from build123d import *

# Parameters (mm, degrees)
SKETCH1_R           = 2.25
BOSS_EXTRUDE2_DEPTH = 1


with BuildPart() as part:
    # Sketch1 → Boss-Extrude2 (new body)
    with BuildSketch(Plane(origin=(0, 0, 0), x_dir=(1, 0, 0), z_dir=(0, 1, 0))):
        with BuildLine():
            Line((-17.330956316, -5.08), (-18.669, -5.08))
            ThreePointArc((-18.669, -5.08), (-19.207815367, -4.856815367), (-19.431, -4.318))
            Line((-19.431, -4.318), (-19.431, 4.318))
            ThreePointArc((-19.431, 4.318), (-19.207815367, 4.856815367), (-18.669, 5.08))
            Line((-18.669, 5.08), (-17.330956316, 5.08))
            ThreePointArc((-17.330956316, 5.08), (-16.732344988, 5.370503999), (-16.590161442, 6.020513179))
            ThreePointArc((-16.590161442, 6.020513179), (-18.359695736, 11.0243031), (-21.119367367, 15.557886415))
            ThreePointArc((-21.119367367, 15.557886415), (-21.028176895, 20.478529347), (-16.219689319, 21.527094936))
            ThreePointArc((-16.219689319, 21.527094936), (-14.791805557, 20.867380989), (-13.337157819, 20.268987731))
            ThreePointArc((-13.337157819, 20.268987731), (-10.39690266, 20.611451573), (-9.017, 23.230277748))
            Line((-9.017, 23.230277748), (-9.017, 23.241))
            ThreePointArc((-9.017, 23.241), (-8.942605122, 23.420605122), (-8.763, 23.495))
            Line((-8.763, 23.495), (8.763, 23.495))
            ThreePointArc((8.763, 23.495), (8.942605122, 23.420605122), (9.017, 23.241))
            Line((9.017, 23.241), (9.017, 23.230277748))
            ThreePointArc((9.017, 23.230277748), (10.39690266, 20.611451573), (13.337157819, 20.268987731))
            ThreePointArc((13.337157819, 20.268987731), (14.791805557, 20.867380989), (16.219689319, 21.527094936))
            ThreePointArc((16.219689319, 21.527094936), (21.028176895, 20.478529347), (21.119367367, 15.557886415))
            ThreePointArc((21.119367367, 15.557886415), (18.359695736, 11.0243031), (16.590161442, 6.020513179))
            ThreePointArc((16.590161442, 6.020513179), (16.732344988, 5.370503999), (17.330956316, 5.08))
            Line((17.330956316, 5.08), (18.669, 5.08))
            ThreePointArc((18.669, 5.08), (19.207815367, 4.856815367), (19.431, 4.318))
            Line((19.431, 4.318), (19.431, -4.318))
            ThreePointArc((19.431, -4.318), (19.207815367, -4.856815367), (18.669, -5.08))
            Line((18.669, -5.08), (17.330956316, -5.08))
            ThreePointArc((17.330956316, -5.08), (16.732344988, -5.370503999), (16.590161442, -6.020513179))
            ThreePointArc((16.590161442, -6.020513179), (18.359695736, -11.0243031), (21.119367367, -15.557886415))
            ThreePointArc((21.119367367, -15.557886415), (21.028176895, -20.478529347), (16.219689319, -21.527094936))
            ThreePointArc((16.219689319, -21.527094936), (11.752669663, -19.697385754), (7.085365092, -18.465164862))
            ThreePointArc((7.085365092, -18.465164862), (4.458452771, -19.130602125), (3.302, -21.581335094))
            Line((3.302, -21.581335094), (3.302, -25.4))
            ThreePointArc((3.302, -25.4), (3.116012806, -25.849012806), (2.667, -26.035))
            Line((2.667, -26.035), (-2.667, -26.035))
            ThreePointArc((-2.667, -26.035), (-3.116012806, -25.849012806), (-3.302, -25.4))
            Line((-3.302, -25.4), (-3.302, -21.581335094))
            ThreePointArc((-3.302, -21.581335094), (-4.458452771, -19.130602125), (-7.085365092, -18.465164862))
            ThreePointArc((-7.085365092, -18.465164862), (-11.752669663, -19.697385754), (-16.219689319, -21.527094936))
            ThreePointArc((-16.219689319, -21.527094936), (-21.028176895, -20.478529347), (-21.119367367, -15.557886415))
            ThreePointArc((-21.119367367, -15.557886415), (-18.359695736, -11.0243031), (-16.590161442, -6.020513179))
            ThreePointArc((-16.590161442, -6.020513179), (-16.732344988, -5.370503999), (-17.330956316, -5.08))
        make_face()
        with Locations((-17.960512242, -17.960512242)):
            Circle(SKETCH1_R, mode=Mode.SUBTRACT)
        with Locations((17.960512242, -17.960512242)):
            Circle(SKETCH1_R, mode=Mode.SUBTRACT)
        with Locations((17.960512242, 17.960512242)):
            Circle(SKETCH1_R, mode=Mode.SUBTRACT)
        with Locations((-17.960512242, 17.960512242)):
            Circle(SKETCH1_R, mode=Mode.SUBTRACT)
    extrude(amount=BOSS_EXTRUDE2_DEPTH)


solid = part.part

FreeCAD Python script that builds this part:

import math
import FreeCAD as App
import Part
import Sketcher
Q = App.Units.Quantity

doc = App.newDocument("Part")
body = doc.addObject("PartDesign::Body", "Body")

sketch1 = body.newObject("Sketcher::SketchObject", "Sketch")
sketch1.AttachmentSupport = (doc.getObject("XZ_Plane"), [""])
sketch1.MapMode = "FlatFace"
sketch1.addGeometry([
    Part.LineSegment(App.Vector(-18.669, 5.08, 0), App.Vector(-17.331, 5.08, 0)),
    Part.ArcOfCircle(Part.Circle(App.Vector(-17.331, 5.842, 0), App.Vector(0, 0, 1), 0.762), math.radians(-90), math.radians(14)),
    Part.ArcOfCircle(Part.Circle(App.Vector(-41.574, 0, 0), App.Vector(0, 0, 1), 25.699), math.radians(14), math.radians(37)),
    Part.ArcOfCircle(Part.Circle(App.Vector(-17.961, 17.961, 0), App.Vector(0, 0, 1), 3.969), math.radians(64), math.radians(217)),
    Part.ArcOfCircle(Part.Circle(App.Vector(0, 54.758, 0), App.Vector(0, 0, 1), 36.978), math.radians(-116.02), math.radians(-101.05)),
    Part.ArcOfCircle(Part.Circle(App.Vector(-6.477, 21.581, 0), App.Vector(0, 0, 1), 3.175), math.radians(-101), math.radians(0)),
    Part.LineSegment(App.Vector(-3.302, 21.581, 0), App.Vector(-3.302, 25.4, 0)),
    Part.ArcOfCircle(Part.Circle(App.Vector(-2.667, 25.4, 0), App.Vector(0, 0, 1), 0.635), math.radians(90), math.radians(180)),
    Part.LineSegment(App.Vector(-2.667, 26.035, 0), App.Vector(2.667, 26.035, 0)),
    Part.ArcOfCircle(Part.Circle(App.Vector(2.667, 25.4, 0), App.Vector(0, 0, 1), 0.635), math.radians(0), math.radians(90)),
    Part.LineSegment(App.Vector(3.302, 25.4, 0), App.Vector(3.302, 21.581, 0)),
    Part.ArcOfCircle(Part.Circle(App.Vector(6.477, 21.581, 0), App.Vector(0, 0, 1), 3.175), math.radians(180), math.radians(281)),
    Part.ArcOfCircle(Part.Circle(App.Vector(0, 54.758, 0), App.Vector(0, 0, 1), 36.978), math.radians(-78.95), math.radians(-63.98)),
    Part.ArcOfCircle(Part.Circle(App.Vector(17.961, 17.961, 0), App.Vector(0, 0, 1), 3.969), math.radians(-37), math.radians(116)),
    Part.ArcOfCircle(Part.Circle(App.Vector(41.574, 0, 0), App.Vector(0, 0, 1), 25.699), math.radians(143), math.radians(166)),
    Part.ArcOfCircle(Part.Circle(App.Vector(17.331, 5.842, 0), App.Vector(0, 0, 1), 0.762), math.radians(166), math.radians(270)),
    Part.LineSegment(App.Vector(17.331, 5.08, 0), App.Vector(18.669, 5.08, 0)),
    Part.ArcOfCircle(Part.Circle(App.Vector(18.669, 4.318, 0), App.Vector(0, 0, 1), 0.762), math.radians(0), math.radians(90)),
    Part.LineSegment(App.Vector(19.431, 4.318, 0), App.Vector(19.431, -4.318, 0)),
    Part.ArcOfCircle(Part.Circle(App.Vector(18.669, -4.318, 0), App.Vector(0, 0, 1), 0.762), math.radians(-90), math.radians(0)),
    Part.LineSegment(App.Vector(18.669, -5.08, 0), App.Vector(17.331, -5.08, 0)),
    Part.ArcOfCircle(Part.Circle(App.Vector(17.331, -5.842, 0), App.Vector(0, 0, 1), 0.762), math.radians(90), math.radians(194)),
    Part.ArcOfCircle(Part.Circle(App.Vector(41.574, 0, 0), App.Vector(0, 0, 1), 25.699), math.radians(-166), math.radians(-143)),
    Part.ArcOfCircle(Part.Circle(App.Vector(17.961, -17.961, 0), App.Vector(0, 0, 1), 3.969), math.radians(-116), math.radians(37)),
    Part.ArcOfCircle(Part.Circle(App.Vector(0, -54.758, 0), App.Vector(0, 0, 1), 36.978), math.radians(63.98), math.radians(68.86)),
    Part.ArcOfCircle(Part.Circle(App.Vector(12.192, -23.23, 0), App.Vector(0, 0, 1), 3.175), math.radians(69), math.radians(180)),
    Part.LineSegment(App.Vector(9.017, -23.23, 0), App.Vector(9.017, -23.241, 0)),
    Part.ArcOfCircle(Part.Circle(App.Vector(8.763, -23.241, 0), App.Vector(0, 0, 1), 0.254), math.radians(-90), math.radians(0)),
    Part.LineSegment(App.Vector(8.763, -23.495, 0), App.Vector(-8.763, -23.495, 0)),
    Part.ArcOfCircle(Part.Circle(App.Vector(-8.763, -23.241, 0), App.Vector(0, 0, 1), 0.254), math.radians(-180), math.radians(-90)),
    Part.LineSegment(App.Vector(-9.017, -23.241, 0), App.Vector(-9.017, -23.23, 0)),
    Part.ArcOfCircle(Part.Circle(App.Vector(-12.192, -23.23, 0), App.Vector(0, 0, 1), 3.175), math.radians(0), math.radians(111)),
    Part.ArcOfCircle(Part.Circle(App.Vector(0, -54.758, 0), App.Vector(0, 0, 1), 36.978), math.radians(111.14), math.radians(116.02)),
    Part.ArcOfCircle(Part.Circle(App.Vector(-17.961, -17.961, 0), App.Vector(0, 0, 1), 3.969), math.radians(143), math.radians(296)),
    Part.ArcOfCircle(Part.Circle(App.Vector(-41.574, 0, 0), App.Vector(0, 0, 1), 25.699), math.radians(-37), math.radians(-14)),
    Part.ArcOfCircle(Part.Circle(App.Vector(-17.331, -5.842, 0), App.Vector(0, 0, 1), 0.762), math.radians(-14), math.radians(90)),
    Part.LineSegment(App.Vector(-17.331, -5.08, 0), App.Vector(-18.669, -5.08, 0)),
    Part.ArcOfCircle(Part.Circle(App.Vector(-18.669, -4.318, 0), App.Vector(0, 0, 1), 0.762), math.radians(-180), math.radians(-90)),
    Part.LineSegment(App.Vector(-19.431, -4.318, 0), App.Vector(-19.431, 4.318, 0)),
    Part.ArcOfCircle(Part.Circle(App.Vector(-18.669, 4.318, 0), App.Vector(0, 0, 1), 0.762), math.radians(90), math.radians(180)),
    Part.Circle(App.Vector(17.961, 17.961, 0), App.Vector(0, 0, 1), 2.25),
    Part.Circle(App.Vector(-17.961, 17.961, 0), App.Vector(0, 0, 1), 2.25),
    Part.Circle(App.Vector(17.961, -17.961, 0), App.Vector(0, 0, 1), 2.25),
    Part.Circle(App.Vector(-17.961, -17.961, 0), App.Vector(0, 0, 1), 2.25),
], False)
sketch1.addConstraint([
    Sketcher.Constraint("Tangent", 0, 2, 1, 1),
    Sketcher.Constraint("Tangent", 1, 2, 2, 1),
    Sketcher.Constraint("Tangent", 2, 2, 3, 2),
    Sketcher.Constraint("Tangent", 3, 1, 4, 1),
    Sketcher.Constraint("Tangent", 4, 2, 5, 1),
    Sketcher.Constraint("Tangent", 5, 2, 6, 1),
    Sketcher.Constraint("Tangent", 6, 2, 7, 2),
    Sketcher.Constraint("Tangent", 7, 1, 8, 1),
    Sketcher.Constraint("Tangent", 8, 2, 9, 2),
    Sketcher.Constraint("Tangent", 9, 1, 10, 1),
    Sketcher.Constraint("Tangent", 10, 2, 11, 1),
    Sketcher.Constraint("Tangent", 11, 2, 12, 1),
    Sketcher.Constraint("Tangent", 12, 2, 13, 2),
    Sketcher.Constraint("Tangent", 13, 1, 14, 1),
    Sketcher.Constraint("Tangent", 14, 2, 15, 1),
    Sketcher.Constraint("Tangent", 15, 2, 16, 1),
    Sketcher.Constraint("Tangent", 16, 2, 17, 2),
    Sketcher.Constraint("Tangent", 17, 1, 18, 1),
    Sketcher.Constraint("Tangent", 18, 2, 19, 2),
    Sketcher.Constraint("Tangent", 19, 1, 20, 1),
    Sketcher.Constraint("Tangent", 20, 2, 21, 1),
    Sketcher.Constraint("Tangent", 21, 2, 22, 1),
    Sketcher.Constraint("Tangent", 22, 2, 23, 2),
    Sketcher.Constraint("Tangent", 23, 1, 24, 1),
    Sketcher.Constraint("Tangent", 24, 2, 25, 1),
    Sketcher.Constraint("Tangent", 25, 2, 26, 1),
    Sketcher.Constraint("Tangent", 26, 2, 27, 2),
    Sketcher.Constraint("Tangent", 27, 1, 28, 1),
    Sketcher.Constraint("Tangent", 28, 2, 29, 2),
    Sketcher.Constraint("Tangent", 29, 1, 30, 1),
    Sketcher.Constraint("Tangent", 30, 2, 31, 1),
    Sketcher.Constraint("Tangent", 31, 2, 32, 1),
    Sketcher.Constraint("Tangent", 32, 2, 33, 2),
    Sketcher.Constraint("Tangent", 33, 1, 34, 1),
    Sketcher.Constraint("Tangent", 34, 2, 35, 1),
    Sketcher.Constraint("Tangent", 35, 2, 36, 1),
    Sketcher.Constraint("Tangent", 36, 2, 37, 2),
    Sketcher.Constraint("Tangent", 37, 1, 38, 1),
    Sketcher.Constraint("Tangent", 38, 2, 39, 2),
    Sketcher.Constraint("Tangent", 39, 1, 0, 1),
    Sketcher.Constraint("Horizontal", 0),
    Sketcher.Constraint("Vertical", 6),
    Sketcher.Constraint("Horizontal", 8),
    Sketcher.Constraint("Vertical", 10),
    Sketcher.Constraint("Horizontal", 16),
    Sketcher.Constraint("Vertical", 18),
    Sketcher.Constraint("Horizontal", 20),
    Sketcher.Constraint("Vertical", 26),
    Sketcher.Constraint("Horizontal", 28),
    Sketcher.Constraint("Vertical", 30),
    Sketcher.Constraint("Horizontal", 36),
    Sketcher.Constraint("Vertical", 38),
    Sketcher.Constraint("Coincident", 12, 3, 4, 3),
    Sketcher.Constraint("Coincident", 22, 3, 14, 3),
    Sketcher.Constraint("Coincident", 32, 3, 24, 3),
    Sketcher.Constraint("Coincident", 34, 3, 2, 3),
    Sketcher.Constraint("Coincident", 40, 3, 13, 3),
    Sketcher.Constraint("Coincident", 41, 3, 3, 3),
    Sketcher.Constraint("Coincident", 42, 3, 23, 3),
    Sketcher.Constraint("Coincident", 43, 3, 33, 3),
    Sketcher.Constraint("Equal", 7, 9),
    Sketcher.Constraint("Equal", 5, 11),
    Sketcher.Constraint("Equal", 4, 12),
    Sketcher.Constraint("Equal", 3, 13),
    Sketcher.Constraint("Equal", 2, 14),
    Sketcher.Constraint("Equal", 1, 15),
    Sketcher.Constraint("Equal", 15, 17),
    Sketcher.Constraint("Equal", 17, 19),
    Sketcher.Constraint("Equal", 19, 21),
    Sketcher.Constraint("Equal", 14, 22),
    Sketcher.Constraint("Equal", 13, 23),
    Sketcher.Constraint("Equal", 12, 24),
    Sketcher.Constraint("Equal", 11, 25),
    Sketcher.Constraint("Equal", 27, 29),
    Sketcher.Constraint("Equal", 25, 31),
    Sketcher.Constraint("Equal", 24, 32),
    Sketcher.Constraint("Equal", 23, 33),
    Sketcher.Constraint("Equal", 22, 34),
    Sketcher.Constraint("Equal", 21, 35),
    Sketcher.Constraint("Equal", 35, 37),
    Sketcher.Constraint("Equal", 37, 39),
    Sketcher.Constraint("Equal", 40, 41),
    Sketcher.Constraint("Equal", 41, 42),
    Sketcher.Constraint("Equal", 42, 43),
    Sketcher.Constraint("Symmetric", 2, 3, 14, 3, -1, 1),
    Sketcher.Constraint("Symmetric", 4, 3, 24, 3, -1, 1),
    Sketcher.Constraint("Symmetric", 17, 3, 37, 3, -1, 1),
    Sketcher.Constraint("Symmetric", 5, 3, 11, 3, -2),
    Sketcher.Constraint("Symmetric", 1, 3, 15, 3, -2),
    Sketcher.Constraint("Horizontal", 25, 3, 31, 3),
    Sketcher.Constraint("Horizontal", 21, 3, 35, 3),
    Sketcher.Constraint("Radius", 1, Q("0.03 in")),
    Sketcher.Constraint("Radius", 27, Q("0.01 in")),
    Sketcher.Constraint("DistanceY", -1, 1, 7, 3, Q("1 in")),
    Sketcher.Constraint("Radius", 3, Q("0.15625 in")),
    Sketcher.Constraint("Radius", 5, Q("0.125 in")),
    Sketcher.Constraint("Radius", 7, Q("0.025 in")),
    Sketcher.Constraint("DistanceX", 8, 1, 8, 2, Q("0.21 in")),
    Sketcher.Constraint("DistanceX", 28, 2, 28, 1, Q("0.69 in")),
    Sketcher.Constraint("DistanceY", 18, 2, 18, 1, Q("0.34 in")),
    Sketcher.Constraint("Diameter", 40, Q("4.5 mm")),
    Sketcher.Constraint("DistanceX", -1, 1, 17, 3, Q("0.735 in")),
    Sketcher.Constraint("DistanceY", 27, 3, -1, 1, Q("0.915 in")),
    Sketcher.Constraint("Radius", 4, Q("36.977852 mm")),
    Sketcher.Constraint("Radius", 2, Q("25.699117 mm")),
    Sketcher.Constraint("DistanceX", 0, 1, 0, 2, Q("1.338044 mm")),
    Sketcher.Constraint("DistanceY", 6, 1, 6, 2, Q("3.818665 mm")),
])
pad1 = body.newObject("PartDesign::Pad", "Pad")
pad1.Profile = sketch1
pad1.Length = 1
pad1.Reversed = True

doc.recompute()
